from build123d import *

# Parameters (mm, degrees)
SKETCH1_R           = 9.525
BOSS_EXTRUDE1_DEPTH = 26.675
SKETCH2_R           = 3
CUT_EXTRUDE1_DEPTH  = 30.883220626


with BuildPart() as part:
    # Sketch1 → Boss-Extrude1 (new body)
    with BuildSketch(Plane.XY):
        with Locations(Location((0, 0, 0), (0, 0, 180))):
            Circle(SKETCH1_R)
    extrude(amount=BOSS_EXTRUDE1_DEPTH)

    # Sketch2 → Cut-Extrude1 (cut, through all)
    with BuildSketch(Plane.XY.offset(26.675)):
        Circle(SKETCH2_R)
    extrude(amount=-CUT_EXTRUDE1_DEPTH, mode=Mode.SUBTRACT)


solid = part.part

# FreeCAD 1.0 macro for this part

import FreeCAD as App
import Part
import Sketcher
from FreeCAD import Vector
Q = App.Units.Quantity

doc = App.newDocument("Part")
params = doc.addObject("Spreadsheet::Sheet", "Params")
for row, (alias, value) in enumerate([
    ("sketch1_diameter", "19.05 mm"),
    ("pad1_length", "26.675 mm"),
    ("sketch2_diameter", "6 mm"),
], start=1):
    params.set(f"A{row}", alias)
    params.set(f"B{row}", "=" + value)
    params.setAlias(f"B{row}", alias)

body = doc.addObject("PartDesign::Body", "Body")

# Sketch on XY plane
sketch1 = doc.addObject("Sketcher::SketchObject", "Sketch")
body.addObject(sketch1)
sketch1.AttachmentSupport = (doc.XY_Plane, [""])
sketch1.MapMode = "FlatFace"
sketch1.addGeometry(Part.Circle(Vector(0, 0, 0), Vector(0, 0, 1), 10), False)
sketch1.addConstraint([
    Sketcher.Constraint("Coincident", 0, 3, -1, 1),
    Sketcher.Constraint("Diameter", 0, Q("19.05 mm")),
])
sketch1.setExpression("Constraints[1]", "Params.sketch1_diameter")
pad1 = doc.addObject("PartDesign::Pad", "Pad")
body.addObject(pad1)
pad1.Profile = sketch1
pad1.setExpression("Length", "Params.pad1_length")

# Sketch on XY plane
sketch2 = doc.addObject("Sketcher::SketchObject", "Sketch001")
body.addObject(sketch2)
sketch2.AttachmentSupport = (doc.XY_Plane, [""])
sketch2.MapMode = "FlatFace"
sketch2.AttachmentOffset = App.Placement(Vector(0, 0, 26.675), App.Rotation())
sketch2.addGeometry(Part.Circle(Vector(0, 0, 0), Vector(0, 0, 1), 3), False)
sketch2.addConstraint([
    Sketcher.Constraint("Coincident", 0, 3, -1, 1),
    Sketcher.Constraint("Diameter", 0, Q("6 mm")),
])
sketch2.setExpression("Constraints[1]", "Params.sketch2_diameter")
pocket1 = doc.addObject("PartDesign::Pocket", "Pocket")
body.addObject(pocket1)
pocket1.Profile = sketch2
pocket1.Type = "ThroughAll"

doc.recompute()
